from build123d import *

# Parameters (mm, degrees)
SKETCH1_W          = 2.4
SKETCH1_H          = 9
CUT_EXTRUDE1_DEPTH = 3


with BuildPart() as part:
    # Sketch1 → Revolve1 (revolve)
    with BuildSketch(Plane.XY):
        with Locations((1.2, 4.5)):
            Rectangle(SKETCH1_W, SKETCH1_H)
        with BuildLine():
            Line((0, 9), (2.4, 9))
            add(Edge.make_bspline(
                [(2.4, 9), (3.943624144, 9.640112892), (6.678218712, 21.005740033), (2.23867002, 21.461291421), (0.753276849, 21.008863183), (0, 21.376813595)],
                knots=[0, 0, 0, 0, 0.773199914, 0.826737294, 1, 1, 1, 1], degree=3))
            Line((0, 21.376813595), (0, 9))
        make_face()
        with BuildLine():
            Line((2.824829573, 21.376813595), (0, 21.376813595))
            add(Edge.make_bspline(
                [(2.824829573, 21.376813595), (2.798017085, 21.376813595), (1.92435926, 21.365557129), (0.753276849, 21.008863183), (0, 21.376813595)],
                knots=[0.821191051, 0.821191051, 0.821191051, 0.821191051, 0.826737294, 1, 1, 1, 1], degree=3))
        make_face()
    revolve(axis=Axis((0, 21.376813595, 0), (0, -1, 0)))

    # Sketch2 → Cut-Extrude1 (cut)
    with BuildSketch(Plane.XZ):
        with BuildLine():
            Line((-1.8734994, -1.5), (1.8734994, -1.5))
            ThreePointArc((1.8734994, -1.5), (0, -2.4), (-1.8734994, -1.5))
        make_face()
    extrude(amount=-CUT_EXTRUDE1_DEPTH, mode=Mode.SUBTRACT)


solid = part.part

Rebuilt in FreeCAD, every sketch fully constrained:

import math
import FreeCAD as App
import Part
import Sketcher
from FreeCAD import Vector

doc = App.newDocument("Part")
params = doc.addObject("Spreadsheet::Sheet", "Params")
for row, (alias, value) in enumerate([
    ("revolution_angle", "360 deg"),
    ("sketch2_radius", "2.4 mm"),
    ("pocket1_length", "3 mm"),
], start=1):
    params.set(f"A{row}", alias)
    params.set(f"B{row}", "=" + value)
    params.setAlias(f"B{row}", alias)

body = doc.addObject("PartDesign::Body", "Body")

# Sketch on XY plane
sketch1 = body.newObject("Sketcher::SketchObject", "Sketch")
sketch1.AttachmentSupport = (doc.getObject("XY_Plane"), [""])
sketch1.MapMode = "FlatFace"
sketch1.addGeometry([
    Part.LineSegment(Vector(0, 0, 0), Vector(2.4, 0, 0)),  # 0
    Part.LineSegment(Vector(2.4, 0, 0), Vector(2.4, 9, 0)),  # 1
    Part.BSplineCurve([Vector(2.4, 9, 0), Vector(3.943624, 9.640113, 0), Vector(6.659873, 20.929493, 0), Vector(3.056836, 21.376814, 0), Vector(2.82483, 21.376814, 0)], [4, 1, 4], [0, 0.773199914, 0.821191051], False, 3, [1, 1, 1, 1, 1], False),  # 2
    Part.LineSegment(Vector(2.82483, 21.376814, 0), Vector(0, 21.376814, 0)),  # 3
    Part.LineSegment(Vector(0, 21.376814, 0), Vector(0, 0, 0)),  # 4
], False)
sketch1.addConstraint([
    Sketcher.Constraint("Block", 2),
    Sketcher.Constraint("Coincident", 0, 2, 1, 1),
    Sketcher.Constraint("Coincident", 1, 2, 2, 1),
    Sketcher.Constraint("Coincident", 2, 2, 3, 1),
    Sketcher.Constraint("Coincident", 3, 2, 4, 1),
    Sketcher.Constraint("Coincident", 4, 2, 0, 1),
    Sketcher.Constraint("Horizontal", 0),
    Sketcher.Constraint("Vertical", 1),
    Sketcher.Constraint("Horizontal", 3),
    Sketcher.Constraint("Vertical", 4),
    Sketcher.Constraint("Coincident", 4, 2, -1, 1),
])
revolution = body.newObject("PartDesign::Revolution", "Revolution")
revolution.Profile = sketch1
revolution.ReferenceAxis = (sketch1, ["V_Axis"])
revolution.setExpression("Angle", "Params.revolution_angle")

# Sketch on XZ plane
sketch2 = body.newObject("Sketcher::SketchObject", "Sketch001")
sketch2.AttachmentSupport = (doc.getObject("XZ_Plane"), [""])
sketch2.MapMode = "FlatFace"
sketch2.addGeometry([
    Part.LineSegment(Vector(1.9, -1.5, 0), Vector(-1.9, -1.5, 0)),
    Part.ArcOfCircle(Part.Circle(Vector(0, 0, 0), Vector(0, 0, 1), 2.4), math.radians(-141), math.radians(-39)),
], False)
sketch2.addConstraint([
    Sketcher.Constraint("Coincident", 0, 1, 1, 2),
    Sketcher.Constraint("Coincident", 1, 1, 0, 2),
    Sketcher.Constraint("Horizontal", 0),
    Sketcher.Constraint("Coincident", 1, 3, -1, 1),
    Sketcher.Constraint("Radius", 1, 2.4),
    Sketcher.Constraint("DistanceY", 0, 1, -1, 1, 1.5),
])
sketch2.setExpression("Constraints[4]", "Params.sketch2_radius")
pocket1 = body.newObject("PartDesign::Pocket", "Pocket")
pocket1.Profile = sketch2
pocket1.setExpression("Length", "Params.pocket1_length")

doc.recompute()
